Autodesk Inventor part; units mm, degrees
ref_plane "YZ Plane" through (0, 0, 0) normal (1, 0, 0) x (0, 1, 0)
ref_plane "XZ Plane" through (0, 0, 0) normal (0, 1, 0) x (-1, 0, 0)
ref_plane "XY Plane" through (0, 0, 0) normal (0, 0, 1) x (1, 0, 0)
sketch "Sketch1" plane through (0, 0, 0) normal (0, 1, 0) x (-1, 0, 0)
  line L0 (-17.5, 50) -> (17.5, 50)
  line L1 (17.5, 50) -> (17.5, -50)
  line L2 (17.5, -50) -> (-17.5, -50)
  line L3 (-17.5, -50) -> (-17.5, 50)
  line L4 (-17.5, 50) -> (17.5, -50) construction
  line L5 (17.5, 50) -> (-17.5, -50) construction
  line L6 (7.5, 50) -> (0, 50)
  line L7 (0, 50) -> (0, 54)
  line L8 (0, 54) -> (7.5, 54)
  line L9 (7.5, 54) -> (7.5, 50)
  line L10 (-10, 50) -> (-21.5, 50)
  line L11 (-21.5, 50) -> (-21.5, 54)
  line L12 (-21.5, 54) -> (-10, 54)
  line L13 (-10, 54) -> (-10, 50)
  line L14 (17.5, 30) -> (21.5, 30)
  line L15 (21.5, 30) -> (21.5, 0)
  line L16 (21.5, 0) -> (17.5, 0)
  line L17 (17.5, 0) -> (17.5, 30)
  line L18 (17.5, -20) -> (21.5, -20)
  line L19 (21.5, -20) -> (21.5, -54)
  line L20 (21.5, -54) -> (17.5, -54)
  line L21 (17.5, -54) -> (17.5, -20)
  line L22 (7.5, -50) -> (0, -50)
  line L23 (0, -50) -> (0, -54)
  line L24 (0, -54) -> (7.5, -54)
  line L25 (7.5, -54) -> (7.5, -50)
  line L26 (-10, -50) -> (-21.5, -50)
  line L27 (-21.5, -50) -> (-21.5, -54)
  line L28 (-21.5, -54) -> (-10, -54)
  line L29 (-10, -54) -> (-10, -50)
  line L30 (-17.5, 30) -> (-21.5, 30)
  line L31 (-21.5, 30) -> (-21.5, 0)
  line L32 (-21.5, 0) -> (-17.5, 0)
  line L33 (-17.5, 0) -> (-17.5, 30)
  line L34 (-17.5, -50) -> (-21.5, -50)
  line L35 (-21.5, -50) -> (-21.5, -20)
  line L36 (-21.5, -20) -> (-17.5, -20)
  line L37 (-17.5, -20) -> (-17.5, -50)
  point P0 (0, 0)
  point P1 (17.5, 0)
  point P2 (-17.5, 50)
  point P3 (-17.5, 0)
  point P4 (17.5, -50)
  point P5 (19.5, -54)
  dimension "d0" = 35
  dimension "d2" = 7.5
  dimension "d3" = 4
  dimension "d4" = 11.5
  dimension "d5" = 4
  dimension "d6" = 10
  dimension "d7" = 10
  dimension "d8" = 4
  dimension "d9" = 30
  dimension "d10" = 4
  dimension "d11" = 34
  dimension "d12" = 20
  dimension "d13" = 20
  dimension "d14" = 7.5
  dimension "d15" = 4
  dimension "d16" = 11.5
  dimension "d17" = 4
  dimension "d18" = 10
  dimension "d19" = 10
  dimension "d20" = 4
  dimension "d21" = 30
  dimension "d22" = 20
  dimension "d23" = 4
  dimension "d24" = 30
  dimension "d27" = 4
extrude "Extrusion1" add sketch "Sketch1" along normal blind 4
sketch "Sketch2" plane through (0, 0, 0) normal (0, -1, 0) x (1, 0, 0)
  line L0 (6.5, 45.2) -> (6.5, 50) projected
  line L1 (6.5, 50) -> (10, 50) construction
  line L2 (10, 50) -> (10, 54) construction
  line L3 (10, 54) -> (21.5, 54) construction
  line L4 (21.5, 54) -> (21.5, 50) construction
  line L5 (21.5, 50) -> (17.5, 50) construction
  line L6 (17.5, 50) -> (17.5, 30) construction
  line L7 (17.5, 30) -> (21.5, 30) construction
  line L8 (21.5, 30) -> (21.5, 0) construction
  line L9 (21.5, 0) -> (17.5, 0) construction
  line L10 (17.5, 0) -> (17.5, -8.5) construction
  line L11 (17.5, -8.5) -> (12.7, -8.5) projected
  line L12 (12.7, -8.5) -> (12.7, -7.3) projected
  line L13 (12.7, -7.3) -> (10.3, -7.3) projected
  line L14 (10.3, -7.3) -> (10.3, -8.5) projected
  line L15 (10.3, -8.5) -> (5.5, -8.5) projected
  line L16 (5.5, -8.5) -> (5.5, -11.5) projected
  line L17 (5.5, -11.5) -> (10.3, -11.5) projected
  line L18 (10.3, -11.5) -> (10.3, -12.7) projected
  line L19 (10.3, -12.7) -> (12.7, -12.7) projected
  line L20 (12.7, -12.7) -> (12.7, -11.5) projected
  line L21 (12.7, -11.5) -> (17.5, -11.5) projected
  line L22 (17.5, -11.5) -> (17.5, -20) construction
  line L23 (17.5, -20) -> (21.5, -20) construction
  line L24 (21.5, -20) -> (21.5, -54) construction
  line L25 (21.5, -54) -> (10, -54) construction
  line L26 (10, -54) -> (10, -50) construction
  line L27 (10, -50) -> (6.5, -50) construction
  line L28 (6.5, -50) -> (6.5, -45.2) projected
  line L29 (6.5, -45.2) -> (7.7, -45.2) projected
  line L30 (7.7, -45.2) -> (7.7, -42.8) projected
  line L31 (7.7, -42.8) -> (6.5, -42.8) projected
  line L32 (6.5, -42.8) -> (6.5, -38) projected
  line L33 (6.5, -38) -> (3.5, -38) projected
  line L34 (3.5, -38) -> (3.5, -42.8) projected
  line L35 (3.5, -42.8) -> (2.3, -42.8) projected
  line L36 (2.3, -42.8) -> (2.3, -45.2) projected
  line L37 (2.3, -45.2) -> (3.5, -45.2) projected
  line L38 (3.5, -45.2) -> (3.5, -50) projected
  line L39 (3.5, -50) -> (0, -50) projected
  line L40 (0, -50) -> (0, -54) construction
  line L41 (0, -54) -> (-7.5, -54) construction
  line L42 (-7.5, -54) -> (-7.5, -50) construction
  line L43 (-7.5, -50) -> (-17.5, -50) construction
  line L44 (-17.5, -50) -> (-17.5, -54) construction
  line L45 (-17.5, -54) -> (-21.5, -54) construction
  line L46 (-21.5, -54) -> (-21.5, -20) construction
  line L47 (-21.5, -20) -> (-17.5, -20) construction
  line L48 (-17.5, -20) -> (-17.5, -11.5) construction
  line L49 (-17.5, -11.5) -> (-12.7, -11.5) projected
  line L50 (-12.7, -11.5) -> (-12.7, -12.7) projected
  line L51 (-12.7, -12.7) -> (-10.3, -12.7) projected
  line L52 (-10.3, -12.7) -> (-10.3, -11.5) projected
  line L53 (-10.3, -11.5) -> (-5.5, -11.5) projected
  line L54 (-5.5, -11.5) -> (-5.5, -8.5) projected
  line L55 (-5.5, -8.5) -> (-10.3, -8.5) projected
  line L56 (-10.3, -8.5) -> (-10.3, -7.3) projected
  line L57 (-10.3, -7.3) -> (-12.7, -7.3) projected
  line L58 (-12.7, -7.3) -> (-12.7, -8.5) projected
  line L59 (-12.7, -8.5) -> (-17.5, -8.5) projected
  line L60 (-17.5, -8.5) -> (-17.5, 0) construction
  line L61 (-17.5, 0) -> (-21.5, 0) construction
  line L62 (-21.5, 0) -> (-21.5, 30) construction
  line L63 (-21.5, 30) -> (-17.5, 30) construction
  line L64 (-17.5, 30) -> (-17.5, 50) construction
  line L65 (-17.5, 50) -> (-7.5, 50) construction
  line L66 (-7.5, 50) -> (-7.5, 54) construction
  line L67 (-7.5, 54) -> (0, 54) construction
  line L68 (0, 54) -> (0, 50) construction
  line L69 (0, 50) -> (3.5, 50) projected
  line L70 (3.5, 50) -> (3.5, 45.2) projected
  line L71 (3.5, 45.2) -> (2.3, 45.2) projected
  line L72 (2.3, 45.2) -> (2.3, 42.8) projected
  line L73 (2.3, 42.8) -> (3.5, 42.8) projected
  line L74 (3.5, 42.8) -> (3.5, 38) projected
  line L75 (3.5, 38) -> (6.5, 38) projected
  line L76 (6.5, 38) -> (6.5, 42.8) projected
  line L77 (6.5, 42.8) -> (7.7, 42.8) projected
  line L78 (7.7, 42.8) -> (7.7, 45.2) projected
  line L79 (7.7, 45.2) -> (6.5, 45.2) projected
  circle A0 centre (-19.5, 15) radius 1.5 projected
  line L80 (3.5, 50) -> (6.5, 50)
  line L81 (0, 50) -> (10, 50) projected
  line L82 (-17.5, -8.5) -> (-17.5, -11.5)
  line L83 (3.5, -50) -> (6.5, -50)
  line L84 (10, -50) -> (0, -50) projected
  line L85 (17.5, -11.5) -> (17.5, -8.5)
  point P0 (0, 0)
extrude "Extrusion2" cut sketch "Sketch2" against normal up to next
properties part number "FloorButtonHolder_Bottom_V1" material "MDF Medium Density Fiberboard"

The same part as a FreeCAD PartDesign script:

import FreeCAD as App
import Part
import Sketcher

V = App.Vector
Q = App.Units.Quantity

doc = App.newDocument("Part")
body = doc.addObject("PartDesign::Body", "Body")

# Sketch on XZ plane
sketch1 = body.newObject("Sketcher::SketchObject", "Sketch")
sketch1.AttachmentSupport = (doc.getObject("XZ_Plane"), [""])
sketch1.MapMode = "FlatFace"
sketch1.addGeometry([
    Part.LineSegment(V(21.5, 50, 0), V(17.5, 50, 0)),  # 0
    Part.LineSegment(V(17.5, 50, 0), V(17.5, 30, 0)),  # 1
    Part.LineSegment(V(17.5, 30, 0), V(21.5, 30, 0)),  # 2
    Part.LineSegment(V(21.5, 30, 0), V(21.5, 0, 0)),  # 3
    Part.LineSegment(V(21.5, 0, 0), V(17.5, 0, 0)),  # 4
    Part.LineSegment(V(17.5, 0, 0), V(17.5, -20, 0)),  # 5
    Part.LineSegment(V(17.5, -20, 0), V(21.5, -20, 0)),  # 6
    Part.LineSegment(V(21.5, -20, 0), V(21.5, -54, 0)),  # 7
    Part.LineSegment(V(21.5, -54, 0), V(10, -54, 0)),  # 8
    Part.LineSegment(V(10, -54, 0), V(10, -50, 0)),  # 9
    Part.LineSegment(V(10, -50, 0), V(0, -50, 0)),  # 10
    Part.LineSegment(V(0, -50, 0), V(0, -54, 0)),  # 11
    Part.LineSegment(V(0, -54, 0), V(-7.5, -54, 0)),  # 12
    Part.LineSegment(V(-7.5, -54, 0), V(-7.5, -50, 0)),  # 13
    Part.LineSegment(V(-7.5, -50, 0), V(-17.5, -50, 0)),  # 14
    Part.LineSegment(V(-17.5, -50, 0), V(-17.5, -54, 0)),  # 15
    Part.LineSegment(V(-17.5, -54, 0), V(-21.5, -54, 0)),  # 16
    Part.LineSegment(V(-21.5, -54, 0), V(-21.5, -20, 0)),  # 17
    Part.LineSegment(V(-21.5, -20, 0), V(-17.5, -20, 0)),  # 18
    Part.LineSegment(V(-17.5, -20, 0), V(-17.5, 0, 0)),  # 19
    Part.LineSegment(V(-17.5, 0, 0), V(-21.5, 0, 0)),  # 20
    Part.LineSegment(V(-21.5, 0, 0), V(-21.5, 30, 0)),  # 21
    Part.LineSegment(V(-21.5, 30, 0), V(-17.5, 30, 0)),  # 22
    Part.LineSegment(V(-17.5, 30, 0), V(-17.5, 50, 0)),  # 23
    Part.LineSegment(V(-17.5, 50, 0), V(-7.5, 50, 0)),  # 24
    Part.LineSegment(V(-7.5, 50, 0), V(-7.5, 54, 0)),  # 25
    Part.LineSegment(V(-7.5, 54, 0), V(0, 54, 0)),  # 26
    Part.LineSegment(V(0, 54, 0), V(0, 50, 0)),  # 27
    Part.LineSegment(V(0, 50, 0), V(10, 50, 0)),  # 28
    Part.LineSegment(V(10, 50, 0), V(10, 54, 0)),  # 29
    Part.LineSegment(V(10, 54, 0), V(21.5, 54, 0)),  # 30
    Part.LineSegment(V(21.5, 54, 0), V(21.5, 50, 0)),  # 31
], False)
sketch1.addConstraint([
    Sketcher.Constraint("Coincident", 0, 2, 1, 1),
    Sketcher.Constraint("Coincident", 1, 2, 2, 1),
    Sketcher.Constraint("Coincident", 2, 2, 3, 1),
    Sketcher.Constraint("Coincident", 3, 2, 4, 1),
    Sketcher.Constraint("Coincident", 4, 2, 5, 1),
    Sketcher.Constraint("Coincident", 5, 2, 6, 1),
    Sketcher.Constraint("Coincident", 6, 2, 7, 1),
    Sketcher.Constraint("Coincident", 7, 2, 8, 1),
    Sketcher.Constraint("Coincident", 8, 2, 9, 1),
    Sketcher.Constraint("Coincident", 9, 2, 10, 1),
    Sketcher.Constraint("Coincident", 10, 2, 11, 1),
    Sketcher.Constraint("Coincident", 11, 2, 12, 1),
    Sketcher.Constraint("Coincident", 12, 2, 13, 1),
    Sketcher.Constraint("Coincident", 13, 2, 14, 1),
    Sketcher.Constraint("Coincident", 14, 2, 15, 1),
    Sketcher.Constraint("Coincident", 15, 2, 16, 1),
    Sketcher.Constraint("Coincident", 16, 2, 17, 1),
    Sketcher.Constraint("Coincident", 17, 2, 18, 1),
    Sketcher.Constraint("Coincident", 18, 2, 19, 1),
    Sketcher.Constraint("Coincident", 19, 2, 20, 1),
    Sketcher.Constraint("Coincident", 20, 2, 21, 1),
    Sketcher.Constraint("Coincident", 21, 2, 22, 1),
    Sketcher.Constraint("Coincident", 22, 2, 23, 1),
    Sketcher.Constraint("Coincident", 23, 2, 24, 1),
    Sketcher.Constraint("Coincident", 24, 2, 25, 1),
    Sketcher.Constraint("Coincident", 25, 2, 26, 1),
    Sketcher.Constraint("Coincident", 26, 2, 27, 1),
    Sketcher.Constraint("Coincident", 27, 2, 28, 1),
    Sketcher.Constraint("Coincident", 28, 2, 29, 1),
    Sketcher.Constraint("Coincident", 29, 2, 30, 1),
    Sketcher.Constraint("Coincident", 30, 2, 31, 1),
    Sketcher.Constraint("Coincident", 31, 2, 0, 1),
    Sketcher.Constraint("Horizontal", 0),
    Sketcher.Constraint("Vertical", 1),
    Sketcher.Constraint("Horizontal", 2),
    Sketcher.Constraint("Vertical", 3),
    Sketcher.Constraint("Horizontal", 4),
    Sketcher.Constraint("Vertical", 5),
    Sketcher.Constraint("Horizontal", 6),
    Sketcher.Constraint("Vertical", 7),
    Sketcher.Constraint("Horizontal", 8),
    Sketcher.Constraint("Vertical", 9),
    Sketcher.Constraint("Horizontal", 10),
    Sketcher.Constraint("Vertical", 11),
    Sketcher.Constraint("Horizontal", 12),
    Sketcher.Constraint("Vertical", 13),
    Sketcher.Constraint("Horizontal", 14),
    Sketcher.Constraint("Vertical", 15),
    Sketcher.Constraint("Horizontal", 16),
    Sketcher.Constraint("Vertical", 17),
    Sketcher.Constraint("Horizontal", 18),
    Sketcher.Constraint("Vertical", 19),
    Sketcher.Constraint("Horizontal", 20),
    Sketcher.Constraint("Vertical", 21),
    Sketcher.Constraint("Horizontal", 22),
    Sketcher.Constraint("Vertical", 23),
    Sketcher.Constraint("Horizontal", 24),
    Sketcher.Constraint("Vertical", 25),
    Sketcher.Constraint("Horizontal", 26),
    Sketcher.Constraint("Vertical", 27),
    Sketcher.Constraint("Horizontal", 28),
    Sketcher.Constraint("Vertical", 29),
    Sketcher.Constraint("Horizontal", 30),
    Sketcher.Constraint("Vertical", 31),
    Sketcher.Constraint("Symmetric", 0, 2, 14, 2, -1, 1),
    Sketcher.Constraint("Symmetric", 4, 2, 19, 2, -1, 1),
    Sketcher.Constraint("Symmetric", 11, 2, 26, 2, -1, 1),
    Sketcher.Constraint("Symmetric", 16, 2, 30, 2, -1, 1),
    Sketcher.Constraint("Symmetric", 7, 2, 16, 2, -2),
    Sketcher.Constraint("Symmetric", 3, 2, 20, 2, -2),
    Sketcher.Constraint("Symmetric", 1, 2, 22, 2, -2),
    Sketcher.Constraint("Symmetric", 13, 2, 24, 2, -1),
    Sketcher.Constraint("Symmetric", 10, 2, 27, 2, -1),
    Sketcher.Constraint("Horizontal", 8, 2, 11, 2),
    Sketcher.Constraint("Horizontal", 10, 2, 13, 2),
    Sketcher.Constraint("Horizontal", 6, 2, 17, 2),
    Sketcher.Constraint("Vertical", 1, 2, 4, 2),
    Sketcher.Constraint("Vertical", 3, 2, 6, 2),
    Sketcher.Constraint("Vertical", 9, 2, 28, 2),
    Sketcher.Constraint("Equal", 10, 14),
    Sketcher.Constraint("Equal", 1, 5),
    Sketcher.Constraint("Equal", 22, 9),
    Sketcher.Constraint("DistanceX", 0, 2, 0, 1, Q("4 mm")),
    Sketcher.Constraint("DistanceX", 10, 2, 10, 1, Q("10 mm")),
    Sketcher.Constraint("DistanceY", 1, 2, 1, 1, Q("20 mm")),
    Sketcher.Constraint("DistanceY", 3, 2, 3, 1, Q("30 mm")),
    Sketcher.Constraint("DistanceX", 8, 2, 8, 1, Q("11.5 mm")),
])
pad1 = body.newObject("PartDesign::Pad", "Pad")
pad1.Profile = sketch1
pad1.Length = 4
pad1.Reversed = True

# Sketch on XZ plane
sketch2 = body.newObject("Sketcher::SketchObject", "Sketch001")
sketch2.AttachmentSupport = (doc.getObject("XZ_Plane"), [""])
sketch2.MapMode = "FlatFace"
sketch2.addGeometry([
    Part.LineSegment(V(7.7, 45.2, 0), V(6.5, 45.2, 0)),  # 0
    Part.LineSegment(V(6.5, 45.2, 0), V(6.5, 50, 0)),  # 1
    Part.LineSegment(V(6.5, 50, 0), V(3.5, 50, 0)),  # 2
    Part.LineSegment(V(3.5, 50, 0), V(3.5, 45.2, 0)),  # 3
    Part.LineSegment(V(3.5, 45.2, 0), V(2.3, 45.2, 0)),  # 4
    Part.LineSegment(V(2.3, 45.2, 0), V(2.3, 42.8, 0)),  # 5
    Part.LineSegment(V(2.3, 42.8, 0), V(3.5, 42.8, 0)),  # 6
    Part.LineSegment(V(3.5, 42.8, 0), V(3.5, 38, 0)),  # 7
    Part.LineSegment(V(3.5, 38, 0), V(6.5, 38, 0)),  # 8
    Part.LineSegment(V(6.5, 38, 0), V(6.5, 42.8, 0)),  # 9
    Part.LineSegment(V(6.5, 42.8, 0), V(7.7, 42.8, 0)),  # 10
    Part.LineSegment(V(7.7, 42.8, 0), V(7.7, 45.2, 0)),  # 11
    Part.LineSegment(V(17.5, -11.5, 0), V(17.5, -8.5, 0)),  # 12
    Part.LineSegment(V(17.5, -8.5, 0), V(12.7, -8.5, 0)),  # 13
    Part.LineSegment(V(12.7, -8.5, 0), V(12.7, -7.3, 0)),  # 14
    Part.LineSegment(V(12.7, -7.3, 0), V(10.3, -7.3, 0)),  # 15
    Part.LineSegment(V(10.3, -7.3, 0), V(10.3, -8.5, 0)),  # 16
    Part.LineSegment(V(10.3, -8.5, 0), V(5.5, -8.5, 0)),  # 17
    Part.LineSegment(V(5.5, -8.5, 0), V(5.5, -11.5, 0)),  # 18
    Part.LineSegment(V(5.5, -11.5, 0), V(10.3, -11.5, 0)),  # 19
    Part.LineSegment(V(10.3, -11.5, 0), V(10.3, -12.7, 0)),  # 20
    Part.LineSegment(V(10.3, -12.7, 0), V(12.7, -12.7, 0)),  # 21
    Part.LineSegment(V(12.7, -12.7, 0), V(12.7, -11.5, 0)),  # 22
    Part.LineSegment(V(12.7, -11.5, 0), V(17.5, -11.5, 0)),  # 23
    Part.LineSegment(V(3.5, -50, 0), V(6.5, -50, 0)),  # 24
    Part.LineSegment(V(6.5, -50, 0), V(6.5, -45.2, 0)),  # 25
    Part.LineSegment(V(6.5, -45.2, 0), V(7.7, -45.2, 0)),  # 26
    Part.LineSegment(V(7.7, -45.2, 0), V(7.7, -42.8, 0)),  # 27
    Part.LineSegment(V(7.7, -42.8, 0), V(6.5, -42.8, 0)),  # 28
    Part.LineSegment(V(6.5, -42.8, 0), V(6.5, -38, 0)),  # 29
    Part.LineSegment(V(6.5, -38, 0), V(3.5, -38, 0)),  # 30
    Part.LineSegment(V(3.5, -38, 0), V(3.5, -42.8, 0)),  # 31
    Part.LineSegment(V(3.5, -42.8, 0), V(2.3, -42.8, 0)),  # 32
    Part.LineSegment(V(2.3, -42.8, 0), V(2.3, -45.2, 0)),  # 33
    Part.LineSegment(V(2.3, -45.2, 0), V(3.5, -45.2, 0)),  # 34
    Part.LineSegment(V(3.5, -45.2, 0), V(3.5, -50, 0)),  # 35
    Part.LineSegment(V(-17.5, -8.5, 0), V(-17.5, -11.5, 0)),  # 36
    Part.LineSegment(V(-17.5, -11.5, 0), V(-12.7, -11.5, 0)),  # 37
    Part.LineSegment(V(-12.7, -11.5, 0), V(-12.7, -12.7, 0)),  # 38
    Part.LineSegment(V(-12.7, -12.7, 0), V(-10.3, -12.7, 0)),  # 39
    Part.LineSegment(V(-10.3, -12.7, 0), V(-10.3, -11.5, 0)),  # 40
    Part.LineSegment(V(-10.3, -11.5, 0), V(-5.5, -11.5, 0)),  # 41
    Part.LineSegment(V(-5.5, -11.5, 0), V(-5.5, -8.5, 0)),  # 42
    Part.LineSegment(V(-5.5, -8.5, 0), V(-10.3, -8.5, 0)),  # 43
    Part.LineSegment(V(-10.3, -8.5, 0), V(-10.3, -7.3, 0)),  # 44
    Part.LineSegment(V(-10.3, -7.3, 0), V(-12.7, -7.3, 0)),  # 45
    Part.LineSegment(V(-12.7, -7.3, 0), V(-12.7, -8.5, 0)),  # 46
    Part.LineSegment(V(-12.7, -8.5, 0), V(-17.5, -8.5, 0)),  # 47
    Part.Circle(V(-19.5, 15, 0), V(0, 0, 1), 1.5),  # 48
], False)
sketch2.addConstraint([
    Sketcher.Constraint("Coincident", 0, 2, 1, 1),
    Sketcher.Constraint("Coincident", 1, 2, 2, 1),
    Sketcher.Constraint("Coincident", 2, 2, 3, 1),
    Sketcher.Constraint("Coincident", 3, 2, 4, 1),
    Sketcher.Constraint("Coincident", 4, 2, 5, 1),
    Sketcher.Constraint("Coincident", 5, 2, 6, 1),
    Sketcher.Constraint("Coincident", 6, 2, 7, 1),
    Sketcher.Constraint("Coincident", 7, 2, 8, 1),
    Sketcher.Constraint("Coincident", 8, 2, 9, 1),
    Sketcher.Constraint("Coincident", 9, 2, 10, 1),
    Sketcher.Constraint("Coincident", 10, 2, 11, 1),
    Sketcher.Constraint("Coincident", 11, 2, 0, 1),
    Sketcher.Constraint("Coincident", 12, 2, 13, 1),
    Sketcher.Constraint("Coincident", 13, 2, 14, 1),
    Sketcher.Constraint("Coincident", 14, 2, 15, 1),
    Sketcher.Constraint("Coincident", 15, 2, 16, 1),
    Sketcher.Constraint("Coincident", 16, 2, 17, 1),
    Sketcher.Constraint("Coincident", 17, 2, 18, 1),
    Sketcher.Constraint("Coincident", 18, 2, 19, 1),
    Sketcher.Constraint("Coincident", 19, 2, 20, 1),
    Sketcher.Constraint("Coincident", 20, 2, 21, 1),
    Sketcher.Constraint("Coincident", 21, 2, 22, 1),
    Sketcher.Constraint("Coincident", 22, 2, 23, 1),
    Sketcher.Constraint("Coincident", 23, 2, 12, 1),
    Sketcher.Constraint("Coincident", 24, 2, 25, 1),
    Sketcher.Constraint("Coincident", 25, 2, 26, 1),
    Sketcher.Constraint("Coincident", 26, 2, 27, 1),
    Sketcher.Constraint("Coincident", 27, 2, 28, 1),
    Sketcher.Constraint("Coincident", 28, 2, 29, 1),
    Sketcher.Constraint("Coincident", 29, 2, 30, 1),
    Sketcher.Constraint("Coincident", 30, 2, 31, 1),
    Sketcher.Constraint("Coincident", 31, 2, 32, 1),
    Sketcher.Constraint("Coincident", 32, 2, 33, 1),
    Sketcher.Constraint("Coincident", 33, 2, 34, 1),
    Sketcher.Constraint("Coincident", 34, 2, 35, 1),
    Sketcher.Constraint("Coincident", 35, 2, 24, 1),
    Sketcher.Constraint("Coincident", 36, 2, 37, 1),
    Sketcher.Constraint("Coincident", 37, 2, 38, 1),
    Sketcher.Constraint("Coincident", 38, 2, 39, 1),
    Sketcher.Constraint("Coincident", 39, 2, 40, 1),
    Sketcher.Constraint("Coincident", 40, 2, 41, 1),
    Sketcher.Constraint("Coincident", 41, 2, 42, 1),
    Sketcher.Constraint("Coincident", 42, 2, 43, 1),
    Sketcher.Constraint("Coincident", 43, 2, 44, 1),
    Sketcher.Constraint("Coincident", 44, 2, 45, 1),
    Sketcher.Constraint("Coincident", 45, 2, 46, 1),
    Sketcher.Constraint("Coincident", 46, 2, 47, 1),
    Sketcher.Constraint("Coincident", 47, 2, 36, 1),
    Sketcher.Constraint("Horizontal", 0),
    Sketcher.Constraint("Vertical", 1),
    Sketcher.Constraint("Horizontal", 2),
    Sketcher.Constraint("Vertical", 3),
    Sketcher.Constraint("Horizontal", 4),
    Sketcher.Constraint("Vertical", 5),
    Sketcher.Constraint("Horizontal", 6),
    Sketcher.Constraint("Vertical", 7),
    Sketcher.Constraint("Horizontal", 8),
    Sketcher.Constraint("Vertical", 9),
    Sketcher.Constraint("Horizontal", 10),
    Sketcher.Constraint("Vertical", 11),
    Sketcher.Constraint("Vertical", 12),
    Sketcher.Constraint("Horizontal", 13),
    Sketcher.Constraint("Vertical", 14),
    Sketcher.Constraint("Horizontal", 15),
    Sketcher.Constraint("Vertical", 16),
    Sketcher.Constraint("Horizontal", 17),
    Sketcher.Constraint("Vertical", 18),
    Sketcher.Constraint("Horizontal", 19),
    Sketcher.Constraint("Vertical", 20),
    Sketcher.Constraint("Horizontal", 21),
    Sketcher.Constraint("Vertical", 22),
    Sketcher.Constraint("Horizontal", 23),
    Sketcher.Constraint("Horizontal", 24),
    Sketcher.Constraint("Vertical", 25),
    Sketcher.Constraint("Horizontal", 26),
    Sketcher.Constraint("Vertical", 27),
    Sketcher.Constraint("Horizontal", 28),
    Sketcher.Constraint("Vertical", 29),
    Sketcher.Constraint("Horizontal", 30),
    Sketcher.Constraint("Vertical", 31),
    Sketcher.Constraint("Horizontal", 32),
    Sketcher.Constraint("Vertical", 33),
    Sketcher.Constraint("Horizontal", 34),
    Sketcher.Constraint("Vertical", 35),
    Sketcher.Constraint("Vertical", 36),
    Sketcher.Constraint("Horizontal", 37),
    Sketcher.Constraint("Vertical", 38),
    Sketcher.Constraint("Horizontal", 39),
    Sketcher.Constraint("Vertical", 40),
    Sketcher.Constraint("Horizontal", 41),
    Sketcher.Constraint("Vertical", 42),
    Sketcher.Constraint("Horizontal", 43),
    Sketcher.Constraint("Vertical", 44),
    Sketcher.Constraint("Horizontal", 45),
    Sketcher.Constraint("Vertical", 46),
    Sketcher.Constraint("Horizontal", 47),
    Sketcher.Constraint("Symmetric", 23, 2, 36, 2, -2),
    Sketcher.Constraint("Symmetric", 21, 2, 38, 2, -2),
    Sketcher.Constraint("Symmetric", 19, 2, 40, 2, -2),
    Sketcher.Constraint("Symmetric", 17, 2, 42, 2, -2),
    Sketcher.Constraint("Symmetric", 15, 2, 44, 2, -2),
    Sketcher.Constraint("Symmetric", 13, 2, 46, 2, -2),
    Sketcher.Constraint("Symmetric", 1, 2, 24, 2, -1),
    Sketcher.Constraint("Symmetric", 11, 2, 26, 2, -1),
    Sketcher.Constraint("Symmetric", 9, 2, 28, 2, -1),
    Sketcher.Constraint("Symmetric", 7, 2, 30, 2, -1),
    Sketcher.Constraint("Symmetric", 5, 2, 32, 2, -1),
    Sketcher.Constraint("Symmetric", 3, 2, 34, 2, -1),
    Sketcher.Constraint("Horizontal", 0, 2, 3, 2),
    Sketcher.Constraint("Horizontal", 6, 2, 9, 2),
    Sketcher.Constraint("Horizontal", 13, 2, 16, 2),
    Sketcher.Constraint("Horizontal", 19, 2, 22, 2),
    Sketcher.Constraint("Vertical", 3, 2, 6, 2),
    Sketcher.Constraint("Vertical", 1, 2, 8, 2),
    Sketcher.Constraint("Vertical", 16, 2, 19, 2),
    Sketcher.Constraint("Vertical", 14, 2, 21, 2),
    Sketcher.Constraint("Equal", 0, 4),
    Sketcher.Constraint("Equal", 13, 17),
    Sketcher.Constraint("Equal", 47, 1),
    Sketcher.Constraint("Equal", 45, 5),
    Sketcher.Constraint("Equal", 3, 7),
    Sketcher.Constraint("Equal", 30, 12),
    Sketcher.Constraint("Equal", 34, 14),
    Sketcher.Constraint("Equal", 16, 20),
    Sketcher.Constraint("Diameter", 48, Q("3 mm")),
    Sketcher.Constraint("DistanceX", 2, 2, 2, 1, Q("3 mm")),
    Sketcher.Constraint("DistanceX", 0, 2, 0, 1, Q("1.2 mm")),
    Sketcher.Constraint("DistanceX", 13, 2, 13, 1, Q("4.8 mm")),
    Sketcher.Constraint("DistanceX", 15, 2, 15, 1, Q("2.4 mm")),
    Sketcher.Constraint("DistanceY", -1, 1, 48, 3, Q("15 mm")),
    Sketcher.Constraint("DistanceY", -1, 1, 1, 2, Q("50 mm")),
    Sketcher.Constraint("DistanceX", 48, 3, 0, 2, Q("26 mm")),
    Sketcher.Constraint("DistanceX", 48, 3, 12, 2, Q("37 mm")),
    Sketcher.Constraint("DistanceX", 36, 2, 18, 2, Q("23 mm")),
    Sketcher.Constraint("DistanceY", 12, 2, -1, 1, Q("8.5 mm")),
])
pocket1 = body.newObject("PartDesign::Pocket", "Pocket")
pocket1.Profile = sketch2
pocket1.Type = "UpToFirst"

doc.recompute()
